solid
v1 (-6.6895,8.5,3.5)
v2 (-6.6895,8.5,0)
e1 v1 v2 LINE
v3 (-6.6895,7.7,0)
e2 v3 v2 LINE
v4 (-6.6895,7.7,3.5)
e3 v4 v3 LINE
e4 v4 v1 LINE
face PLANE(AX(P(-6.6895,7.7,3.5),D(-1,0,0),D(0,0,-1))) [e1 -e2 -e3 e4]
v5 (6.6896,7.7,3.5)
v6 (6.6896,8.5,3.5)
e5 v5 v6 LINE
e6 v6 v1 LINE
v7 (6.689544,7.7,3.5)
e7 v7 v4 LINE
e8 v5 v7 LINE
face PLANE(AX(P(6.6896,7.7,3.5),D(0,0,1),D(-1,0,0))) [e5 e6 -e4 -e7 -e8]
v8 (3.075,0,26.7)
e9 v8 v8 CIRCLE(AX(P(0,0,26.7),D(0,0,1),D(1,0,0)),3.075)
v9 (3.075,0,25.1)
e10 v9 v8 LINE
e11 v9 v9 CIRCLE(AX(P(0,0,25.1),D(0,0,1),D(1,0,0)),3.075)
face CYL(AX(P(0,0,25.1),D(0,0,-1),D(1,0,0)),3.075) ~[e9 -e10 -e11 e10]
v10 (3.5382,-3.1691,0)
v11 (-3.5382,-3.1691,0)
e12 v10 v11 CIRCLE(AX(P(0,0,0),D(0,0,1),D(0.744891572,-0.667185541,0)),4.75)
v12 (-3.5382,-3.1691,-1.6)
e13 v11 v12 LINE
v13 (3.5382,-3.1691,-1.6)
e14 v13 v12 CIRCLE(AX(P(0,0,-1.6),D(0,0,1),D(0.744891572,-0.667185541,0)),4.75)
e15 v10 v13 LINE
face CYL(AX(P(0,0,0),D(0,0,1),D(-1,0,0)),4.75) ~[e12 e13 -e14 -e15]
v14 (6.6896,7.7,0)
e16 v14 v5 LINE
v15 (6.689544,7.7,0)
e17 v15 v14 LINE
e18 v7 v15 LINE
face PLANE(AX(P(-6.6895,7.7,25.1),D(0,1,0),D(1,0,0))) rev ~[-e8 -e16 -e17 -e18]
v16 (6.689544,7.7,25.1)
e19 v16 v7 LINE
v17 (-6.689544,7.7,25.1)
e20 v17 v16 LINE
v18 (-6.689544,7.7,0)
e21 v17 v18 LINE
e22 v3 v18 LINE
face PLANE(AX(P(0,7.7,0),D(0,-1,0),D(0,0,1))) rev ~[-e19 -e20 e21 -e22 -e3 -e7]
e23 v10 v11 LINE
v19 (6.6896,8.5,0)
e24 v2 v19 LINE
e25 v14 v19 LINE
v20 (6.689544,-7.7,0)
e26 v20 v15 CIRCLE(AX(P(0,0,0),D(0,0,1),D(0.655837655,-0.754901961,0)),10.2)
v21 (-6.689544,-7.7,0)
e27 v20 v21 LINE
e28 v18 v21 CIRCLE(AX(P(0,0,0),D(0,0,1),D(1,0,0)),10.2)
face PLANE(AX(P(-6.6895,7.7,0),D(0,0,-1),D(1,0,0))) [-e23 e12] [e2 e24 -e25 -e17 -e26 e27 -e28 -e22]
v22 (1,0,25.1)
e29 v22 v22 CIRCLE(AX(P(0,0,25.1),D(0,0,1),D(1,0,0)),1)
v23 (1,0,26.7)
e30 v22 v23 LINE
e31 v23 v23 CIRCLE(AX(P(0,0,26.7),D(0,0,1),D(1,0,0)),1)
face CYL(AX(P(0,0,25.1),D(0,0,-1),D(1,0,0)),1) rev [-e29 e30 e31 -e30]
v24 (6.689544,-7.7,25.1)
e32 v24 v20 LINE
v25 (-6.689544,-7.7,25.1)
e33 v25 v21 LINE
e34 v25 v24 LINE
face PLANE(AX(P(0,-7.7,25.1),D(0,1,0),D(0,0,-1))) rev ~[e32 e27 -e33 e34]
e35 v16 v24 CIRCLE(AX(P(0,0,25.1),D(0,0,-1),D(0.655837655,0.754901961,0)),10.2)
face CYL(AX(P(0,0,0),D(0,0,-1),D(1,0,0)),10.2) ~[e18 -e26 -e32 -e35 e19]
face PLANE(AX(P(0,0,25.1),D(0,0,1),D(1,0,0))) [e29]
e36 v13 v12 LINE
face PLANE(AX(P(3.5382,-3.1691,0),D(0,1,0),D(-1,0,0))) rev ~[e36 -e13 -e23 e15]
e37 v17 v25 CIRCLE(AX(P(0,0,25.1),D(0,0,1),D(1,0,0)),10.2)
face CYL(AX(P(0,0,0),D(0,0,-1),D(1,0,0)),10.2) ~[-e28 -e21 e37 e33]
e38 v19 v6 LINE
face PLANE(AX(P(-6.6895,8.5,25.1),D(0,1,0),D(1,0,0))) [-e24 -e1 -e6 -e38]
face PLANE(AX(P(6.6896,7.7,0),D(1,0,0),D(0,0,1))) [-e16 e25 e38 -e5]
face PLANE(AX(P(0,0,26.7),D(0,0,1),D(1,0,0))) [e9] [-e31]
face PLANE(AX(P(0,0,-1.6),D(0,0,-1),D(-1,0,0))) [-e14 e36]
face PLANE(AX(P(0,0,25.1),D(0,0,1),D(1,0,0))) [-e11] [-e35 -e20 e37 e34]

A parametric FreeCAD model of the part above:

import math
import FreeCAD as App
import Part
import Sketcher
Q = App.Units.Quantity


def add_polygon(sketch, points):
    """Adds a closed chain of lines whose ends are joined by coincident constraints."""
    first, n = sketch.GeometryCount, len(points)
    for a, b in zip(points, points[1:] + points[:1]):
        sketch.addGeometry(Part.LineSegment(App.Vector(*a, 0), App.Vector(*b, 0)), False)
    for i in range(n):
        sketch.addConstraint(Sketcher.Constraint("Coincident", first + i, 2, first + (i + 1) % n, 1))

doc = App.newDocument("Part")
params = doc.addObject("Spreadsheet::Sheet", "Params")
for row, (alias, value) in enumerate([
    ("sketch1_diameter", "20.4 mm"),
    ("pad1_length", "25.1 mm"),
    ("sketch2_width", "2.5 mm"),
    ("sketch2_height", "25.1 mm"),
    ("pocket1_length", "22 mm"),
    ("sketch3_diameter", "2 mm"),
    ("sketch3_diameter2", "6.15 mm"),
    ("pad2_length", "1.6 mm"),
    ("sketch4_height", "3.5 mm"),
    ("pad3_length", "0.8 mm"),
    ("sketch5_radius", "4.75 mm"),
    ("pad4_length", "1.6 mm"),
], start=1):
    params.set(f"A{row}", alias)
    params.set(f"B{row}", "=" + value)
    params.setAlias(f"B{row}", alias)

body = doc.addObject("PartDesign::Body", "Body")

# Sketch on XY plane
sketch1 = body.newObject("Sketcher::SketchObject", "Sketch")
sketch1.AttachmentSupport = (doc.getObject("XY_Plane"), [""])
sketch1.MapMode = "FlatFace"
sketch1.addGeometry(Part.Circle(App.Vector(0, 0, 0), App.Vector(0, 0, 1), 10), False)
sketch1.addConstraint([
    Sketcher.Constraint("Coincident", 0, 3, -1, 1),
    Sketcher.Constraint("Diameter", 0, Q("20.4 mm")),
])
sketch1.setExpression("Constraints[1]", "Params.sketch1_diameter")
pad1 = body.newObject("PartDesign::Pad", "Pad")
pad1.Profile = sketch1
pad1.setExpression("Length", "Params.pad1_length")

# Sketch on YZ plane
sketch2 = body.newObject("Sketcher::SketchObject", "Sketch001")
sketch2.AttachmentSupport = (doc.getObject("YZ_Plane"), [""])
sketch2.MapMode = "FlatFace"
add_polygon(sketch2, [(10.2, 0), (10.2, 25.1), (7.7, 25.1), (7.7, 0)])  # lines 0-3
add_polygon(sketch2, [(-7.7, 0), (-7.7, 25.1), (-10.2, 25.1), (-10.2, 0)])  # lines 4-7
sketch2.addConstraint([
    Sketcher.Constraint("Vertical", 0),
    Sketcher.Constraint("Horizontal", 1),
    Sketcher.Constraint("Vertical", 2),
    Sketcher.Constraint("Horizontal", 3),
    Sketcher.Constraint("Vertical", 4),
    Sketcher.Constraint("Horizontal", 5),
    Sketcher.Constraint("Vertical", 6),
    Sketcher.Constraint("Horizontal", 7),
    Sketcher.Constraint("Symmetric", 3, 2, 6, 2, -1, 1),
    Sketcher.Constraint("Symmetric", 1, 2, 4, 2, -2),
    Sketcher.Constraint("PointOnObject", 2, 2, -1),
    Sketcher.Constraint("DistanceX", -1, 1, 1, 2, Q("7.7 mm")),
    Sketcher.Constraint("DistanceX", 1, 2, 1, 1, Q("2.5 mm")),
    Sketcher.Constraint("DistanceY", 0, 1, 0, 2, Q("25.1 mm")),
])
sketch2.setExpression("Constraints[20]", "Params.sketch2_width")
sketch2.setExpression("Constraints[21]", "Params.sketch2_height")
pocket1 = body.newObject("PartDesign::Pocket", "Pocket")
pocket1.Profile = sketch2
pocket1.setExpression("Length", "Params.pocket1_length")
pocket1.Midplane = True

# Sketch on XY plane
sketch3 = body.newObject("Sketcher::SketchObject", "Sketch002")
sketch3.AttachmentSupport = (doc.getObject("XY_Plane"), [""])
sketch3.MapMode = "FlatFace"
sketch3.AttachmentOffset = App.Placement(App.Vector(0, 0, 25.1), App.Rotation())
sketch3.addGeometry([
    Part.Circle(App.Vector(0, 0, 0), App.Vector(0, 0, 1), 3.1),
    Part.Circle(App.Vector(0, 0, 0), App.Vector(0, 0, 1), 1),
], False)
sketch3.addConstraint([
    Sketcher.Constraint("Coincident", 0, 3, -1, 1),
    Sketcher.Constraint("Coincident", 1, 3, -1, 1),
    Sketcher.Constraint("Diameter", 1, Q("2 mm")),
    Sketcher.Constraint("Diameter", 0, Q("6.15 mm")),
])
sketch3.setExpression("Constraints[2]", "Params.sketch3_diameter")
sketch3.setExpression("Constraints[3]", "Params.sketch3_diameter2")
pad2 = body.newObject("PartDesign::Pad", "Pad001")
pad2.Profile = sketch3
pad2.setExpression("Length", "Params.pad2_length")

# Sketch on XZ plane
sketch4 = body.newObject("Sketcher::SketchObject", "Sketch003")
sketch4.AttachmentSupport = (doc.getObject("XZ_Plane"), [""])
sketch4.MapMode = "FlatFace"
sketch4.AttachmentOffset = App.Placement(App.Vector(0, 0, -7.7), App.Rotation())
add_polygon(sketch4, [(-6.7, 0), (-6.7, 3.5), (6.7, 3.5), (6.7, 0)])  # lines 0-3
sketch4.addConstraint([
    Sketcher.Constraint("Vertical", 0),
    Sketcher.Constraint("Horizontal", 1),
    Sketcher.Constraint("Vertical", 2),
    Sketcher.Constraint("Horizontal", 3),
    Sketcher.Constraint("Symmetric", 2, 2, 3, 2, -1, 1),
    Sketcher.Constraint("DistanceY", 0, 1, 0, 2, Q("3.5 mm")),
    Sketcher.Constraint("DistanceX", 1, 1, 1, 2, Q("13.379 mm")),
])
sketch4.setExpression("Constraints[9]", "Params.sketch4_height")
pad3 = body.newObject("PartDesign::Pad", "Pad002")
pad3.Profile = sketch4
pad3.setExpression("Length", "Params.pad3_length")
pad3.Reversed = True

# Sketch on XY plane
sketch5 = body.newObject("Sketcher::SketchObject", "Sketch004")
sketch5.AttachmentSupport = (doc.getObject("XY_Plane"), [""])
sketch5.MapMode = "FlatFace"
sketch5.addGeometry([
    Part.ArcOfCircle(Part.Circle(App.Vector(0, 0, 0), App.Vector(0, 0, 1), 4.8), math.radians(-42), math.radians(222)),
    Part.LineSegment(App.Vector(-3.5, -3.2, 0), App.Vector(3.5, -3.2, 0)),
], False)
sketch5.addConstraint([
    Sketcher.Constraint("Coincident", 0, 1, 1, 2),
    Sketcher.Constraint("Coincident", 1, 1, 0, 2),
    Sketcher.Constraint("Horizontal", 1),
    Sketcher.Constraint("Coincident", 0, 3, -1, 1),
    Sketcher.Constraint("Radius", 0, Q("4.75 mm")),
    Sketcher.Constraint("DistanceX", 1, 1, 1, 2, Q("7.0764 mm")),
])
sketch5.setExpression("Constraints[4]", "Params.sketch5_radius")
pad4 = body.newObject("PartDesign::Pad", "Pad003")
pad4.Profile = sketch5
pad4.setExpression("Length", "Params.pad4_length")
pad4.Reversed = True

doc.recompute()
